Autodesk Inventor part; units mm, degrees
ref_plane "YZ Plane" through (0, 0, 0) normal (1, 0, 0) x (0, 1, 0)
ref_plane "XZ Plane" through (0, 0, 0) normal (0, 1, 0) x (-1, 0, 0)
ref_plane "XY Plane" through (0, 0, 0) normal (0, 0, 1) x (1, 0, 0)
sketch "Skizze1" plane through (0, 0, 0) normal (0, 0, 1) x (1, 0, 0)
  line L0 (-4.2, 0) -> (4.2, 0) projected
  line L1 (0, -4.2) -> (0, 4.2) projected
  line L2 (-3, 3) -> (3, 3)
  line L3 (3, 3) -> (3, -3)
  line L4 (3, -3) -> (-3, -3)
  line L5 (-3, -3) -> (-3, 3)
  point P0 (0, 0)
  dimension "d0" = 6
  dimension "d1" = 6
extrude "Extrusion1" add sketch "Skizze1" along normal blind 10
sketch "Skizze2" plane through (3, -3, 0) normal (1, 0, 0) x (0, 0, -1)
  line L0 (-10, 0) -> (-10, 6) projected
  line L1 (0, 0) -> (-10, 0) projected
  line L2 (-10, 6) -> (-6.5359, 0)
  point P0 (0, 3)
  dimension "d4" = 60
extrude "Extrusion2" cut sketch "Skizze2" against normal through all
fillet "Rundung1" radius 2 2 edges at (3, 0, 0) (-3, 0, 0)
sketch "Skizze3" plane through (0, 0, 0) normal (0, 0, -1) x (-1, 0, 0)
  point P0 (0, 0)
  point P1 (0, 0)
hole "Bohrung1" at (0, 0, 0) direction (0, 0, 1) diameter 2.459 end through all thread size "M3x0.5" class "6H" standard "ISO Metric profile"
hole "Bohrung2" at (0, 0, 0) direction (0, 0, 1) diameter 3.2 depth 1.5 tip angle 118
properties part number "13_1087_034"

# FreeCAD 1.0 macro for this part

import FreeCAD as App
import Part
import Sketcher
Q = App.Units.Quantity


def edges_at(feature, points):
    """Names of the edges that pass closest to the given points."""
    edges = feature.Shape.Edges
    near = lambda p: min(range(len(edges)), key=lambda i: edges[i].distToShape(Part.Vertex(*p))[0])
    return sorted({f"Edge{near(p) + 1}" for p in points})


def add_polygon(sketch, points):
    """Adds a closed chain of lines whose ends are joined by coincident constraints."""
    first, n = sketch.GeometryCount, len(points)
    for a, b in zip(points, points[1:] + points[:1]):
        sketch.addGeometry(Part.LineSegment(App.Vector(*a, 0), App.Vector(*b, 0)), False)
    for i in range(n):
        sketch.addConstraint(Sketcher.Constraint("Coincident", first + i, 2, first + (i + 1) % n, 1))

doc = App.newDocument("Part")
body = doc.addObject("PartDesign::Body", "Body")

# Sketch on XY plane
sketch1 = doc.addObject("Sketcher::SketchObject", "Sketch")
body.addObject(sketch1)
sketch1.AttachmentSupport = (doc.XY_Plane, [""])
sketch1.MapMode = "FlatFace"
add_polygon(sketch1, [(-3, 3), (-3, -3), (3, -3), (3, 3)])  # lines 0-3
sketch1.addConstraint([
    Sketcher.Constraint("Vertical", 0),
    Sketcher.Constraint("Horizontal", 1),
    Sketcher.Constraint("Vertical", 2),
    Sketcher.Constraint("Horizontal", 3),
    Sketcher.Constraint("Symmetric", 0, 2, 2, 2, -1, 1),
    Sketcher.Constraint("Equal", 3, 0),
    Sketcher.Constraint("DistanceX", 1, 1, 1, 2, Q("6 mm")),
])
pad1 = doc.addObject("PartDesign::Pad", "Pad")
body.addObject(pad1)
pad1.Profile = sketch1
pad1.Length = 10

# Sketch on YZ plane
sketch2 = doc.addObject("Sketcher::SketchObject", "Sketch001")
body.addObject(sketch2)
sketch2.AttachmentSupport = (doc.YZ_Plane, [""])
sketch2.MapMode = "FlatFace"
sketch2.AttachmentOffset = App.Placement(App.Vector(0, 0, 3), App.Rotation())
add_polygon(sketch2, [(3, 10), (-3, 10), (-3, 6.5)])  # lines 0-2
sketch2.addConstraint([
    Sketcher.Constraint("Horizontal", 0),
    Sketcher.Constraint("Vertical", 1),
    Sketcher.Constraint("DistanceX", 0, 2, 0, 1, Q("6 mm")),
    Sketcher.Constraint("Angle", 2, Q("30 deg")),
    Sketcher.Constraint("DistanceX", 0, 2, -1, 1, Q("3 mm")),
    Sketcher.Constraint("DistanceY", -1, 1, 0, 2, Q("10 mm")),
])
pocket1 = doc.addObject("PartDesign::Pocket", "Pocket")
body.addObject(pocket1)
pocket1.Profile = sketch2
pocket1.Type = "ThroughAll"
doc.recompute()

fillet = doc.addObject("PartDesign::Fillet", "Fillet")
body.addObject(fillet)
fillet.Base = (pocket1, edges_at(pocket1, [(3, 0, 0), (-3, 0, 0)]))
fillet.Radius = 2

# Sketch on XY plane
sketch3 = doc.addObject("Sketcher::SketchObject", "Sketch002")
body.addObject(sketch3)
sketch3.AttachmentSupport = (doc.XY_Plane, [""])
sketch3.MapMode = "FlatFace"
sketch3.addGeometry(Part.Circle(App.Vector(0, 0, 0), App.Vector(0, 0, 1), 1.2), False)
sketch3.addConstraint([
    Sketcher.Constraint("Coincident", 0, 3, -1, 1),
    Sketcher.Constraint("Diameter", 0, Q("2.459 mm")),
])
doc.recompute()
hole = doc.addObject("PartDesign::Hole", "Hole")
body.addObject(hole)
hole.Profile = sketch3
hole.ThreadType = "None"
hole.Diameter = 2.459
hole.DepthType = "ThroughAll"
hole.Reversed = True

# Sketch on XY plane
sketch4 = doc.addObject("Sketcher::SketchObject", "Sketch003")
body.addObject(sketch4)
sketch4.AttachmentSupport = (doc.XY_Plane, [""])
sketch4.MapMode = "FlatFace"
sketch4.addGeometry(Part.Circle(App.Vector(0, 0, 0), App.Vector(0, 0, 1), 1.6), False)
sketch4.addConstraint([
    Sketcher.Constraint("Coincident", 0, 3, -1, 1),
    Sketcher.Constraint("Diameter", 0, Q("3.2 mm")),
])
doc.recompute()
hole2 = doc.addObject("PartDesign::Hole", "Hole001")
body.addObject(hole2)
hole2.Profile = sketch4
hole2.ThreadType = "None"
hole2.Diameter = 3.2
hole2.DepthType = "Dimension"
hole2.Depth = 1.5
hole2.DrillPoint = "Angled"
hole2.DrillPointAngle = 118
hole2.Reversed = True

doc.recompute()
